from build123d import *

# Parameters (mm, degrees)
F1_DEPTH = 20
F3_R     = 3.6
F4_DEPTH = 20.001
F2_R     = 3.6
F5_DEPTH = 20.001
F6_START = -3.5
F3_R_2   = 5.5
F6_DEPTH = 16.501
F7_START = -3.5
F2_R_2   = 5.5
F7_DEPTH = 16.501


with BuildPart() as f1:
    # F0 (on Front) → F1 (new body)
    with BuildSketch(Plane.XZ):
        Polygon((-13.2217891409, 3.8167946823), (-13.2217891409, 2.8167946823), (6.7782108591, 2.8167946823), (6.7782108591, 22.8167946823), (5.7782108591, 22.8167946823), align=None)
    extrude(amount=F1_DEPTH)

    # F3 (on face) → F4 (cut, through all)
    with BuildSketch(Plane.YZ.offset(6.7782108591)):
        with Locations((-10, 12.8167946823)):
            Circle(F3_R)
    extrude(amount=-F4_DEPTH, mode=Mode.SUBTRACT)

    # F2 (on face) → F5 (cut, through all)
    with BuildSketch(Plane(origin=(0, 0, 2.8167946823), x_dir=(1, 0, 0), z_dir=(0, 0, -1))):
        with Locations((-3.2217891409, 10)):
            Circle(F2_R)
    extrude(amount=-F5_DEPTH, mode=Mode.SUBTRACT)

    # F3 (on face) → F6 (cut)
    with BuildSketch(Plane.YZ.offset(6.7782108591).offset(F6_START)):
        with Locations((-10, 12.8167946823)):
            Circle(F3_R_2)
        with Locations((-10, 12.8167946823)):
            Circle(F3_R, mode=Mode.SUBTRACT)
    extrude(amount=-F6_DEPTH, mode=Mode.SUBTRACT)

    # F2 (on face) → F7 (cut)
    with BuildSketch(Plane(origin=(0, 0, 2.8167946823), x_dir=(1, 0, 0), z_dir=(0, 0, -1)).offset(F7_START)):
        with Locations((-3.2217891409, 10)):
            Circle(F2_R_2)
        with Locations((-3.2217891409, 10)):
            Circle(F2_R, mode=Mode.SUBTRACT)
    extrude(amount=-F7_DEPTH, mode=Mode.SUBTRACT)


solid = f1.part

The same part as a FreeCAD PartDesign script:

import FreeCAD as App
import Part
import Sketcher
from FreeCAD import Vector
Q = App.Units.Quantity

doc = App.newDocument("Part")
body = doc.addObject("PartDesign::Body", "Body")

sketch1 = doc.addObject("Sketcher::SketchObject", "Sketch")
body.addObject(sketch1)
sketch1.AttachmentSupport = (doc.XZ_Plane, [""])
sketch1.MapMode = "FlatFace"
sketch1.addGeometry([
    Part.LineSegment(Vector(-13.2, 3.8, 0), Vector(-13.2, 2.8, 0)),
    Part.LineSegment(Vector(-13.2, 2.8, 0), Vector(6.8, 2.8, 0)),
    Part.LineSegment(Vector(6.8, 2.8, 0), Vector(6.8, 22.8, 0)),
    Part.LineSegment(Vector(6.8, 22.8, 0), Vector(5.8, 22.8, 0)),
    Part.LineSegment(Vector(5.8, 22.8, 0), Vector(-13.2, 3.8, 0)),
], False)
sketch1.addConstraint([
    Sketcher.Constraint("Coincident", 0, 2, 1, 1),
    Sketcher.Constraint("Coincident", 1, 2, 2, 1),
    Sketcher.Constraint("Coincident", 2, 2, 3, 1),
    Sketcher.Constraint("Coincident", 3, 2, 4, 1),
    Sketcher.Constraint("Coincident", 4, 2, 0, 1),
    Sketcher.Constraint("Vertical", 0),
    Sketcher.Constraint("Horizontal", 1),
    Sketcher.Constraint("Vertical", 2),
    Sketcher.Constraint("Horizontal", 3),
    Sketcher.Constraint("Equal", 3, 0),
    Sketcher.Constraint("Equal", 1, 2),
    Sketcher.Constraint("DistanceX", 1, 1, 1, 2, Q("20 mm")),
    Sketcher.Constraint("DistanceX", 3, 2, 3, 1, Q("1 mm")),
    Sketcher.Constraint("DistanceX", 0, 2, -1, 1, Q("13.221789 mm")),
    Sketcher.Constraint("DistanceY", -1, 1, 0, 2, Q("2.816795 mm")),
])
pad1 = doc.addObject("PartDesign::Pad", "Pad")
body.addObject(pad1)
pad1.Profile = sketch1
pad1.Length = 20

sketch2 = doc.addObject("Sketcher::SketchObject", "Sketch001")
body.addObject(sketch2)
sketch2.AttachmentSupport = (doc.YZ_Plane, [""])
sketch2.MapMode = "FlatFace"
sketch2.AttachmentOffset = App.Placement(Vector(0, 0, 6.778211), App.Rotation())
sketch2.addGeometry(Part.Circle(Vector(-10, 12.8, 0), Vector(0, 0, 1), 3.6), False)
sketch2.addConstraint([
    Sketcher.Constraint("Diameter", 0, Q("7.2 mm")),
    Sketcher.Constraint("DistanceX", 0, 3, -1, 1, Q("10 mm")),
    Sketcher.Constraint("DistanceY", -1, 1, 0, 3, Q("12.816795 mm")),
])
pocket1 = doc.addObject("PartDesign::Pocket", "Pocket")
body.addObject(pocket1)
pocket1.Profile = sketch2
pocket1.Type = "ThroughAll"

sketch3 = doc.addObject("Sketcher::SketchObject", "Sketch002")
body.addObject(sketch3)
sketch3.AttachmentSupport = (doc.XY_Plane, [""])
sketch3.MapMode = "FlatFace"
sketch3.AttachmentOffset = App.Placement(Vector(0, 0, 2.816795), App.Rotation())
sketch3.addGeometry(Part.Circle(Vector(-3.2, -10, 0), Vector(0, 0, 1), 3.6), False)
sketch3.addConstraint([
    Sketcher.Constraint("Diameter", 0, Q("7.2 mm")),
    Sketcher.Constraint("DistanceY", 0, 3, -1, 1, Q("10 mm")),
    Sketcher.Constraint("DistanceX", 0, 3, -1, 1, Q("3.221789 mm")),
])
pocket2 = doc.addObject("PartDesign::Pocket", "Pocket001")
body.addObject(pocket2)
pocket2.Profile = sketch3
pocket2.Type = "ThroughAll"
pocket2.Reversed = True

sketch4 = doc.addObject("Sketcher::SketchObject", "Sketch003")
body.addObject(sketch4)
sketch4.AttachmentSupport = (doc.YZ_Plane, [""])
sketch4.MapMode = "FlatFace"
sketch4.AttachmentOffset = App.Placement(Vector(0, 0, 3.278211), App.Rotation())
sketch4.addGeometry([
    Part.Circle(Vector(-10, 12.8, 0), Vector(0, 0, 1), 5.5),
    Part.Circle(Vector(-10, 12.8, 0), Vector(0, 0, 1), 3.6),
], False)
sketch4.addConstraint([
    Sketcher.Constraint("Coincident", 1, 3, 0, 3),
    Sketcher.Constraint("Diameter", 0, Q("11 mm")),
    Sketcher.Constraint("Diameter", 1, Q("7.2 mm")),
    Sketcher.Constraint("DistanceX", 0, 3, -1, 1, Q("10 mm")),
    Sketcher.Constraint("DistanceY", -1, 1, 0, 3, Q("12.816795 mm")),
])
pocket3 = doc.addObject("PartDesign::Pocket", "Pocket002")
body.addObject(pocket3)
pocket3.Profile = sketch4
pocket3.Length = 16.501

sketch5 = doc.addObject("Sketcher::SketchObject", "Sketch004")
body.addObject(sketch5)
sketch5.AttachmentSupport = (doc.XY_Plane, [""])
sketch5.MapMode = "FlatFace"
sketch5.AttachmentOffset = App.Placement(Vector(0, 0, 6.316795), App.Rotation())
sketch5.addGeometry([
    Part.Circle(Vector(-3.2, -10, 0), Vector(0, 0, 1), 5.5),
    Part.Circle(Vector(-3.2, -10, 0), Vector(0, 0, 1), 3.6),
], False)
sketch5.addConstraint([
    Sketcher.Constraint("Coincident", 1, 3, 0, 3),
    Sketcher.Constraint("Diameter", 0, Q("11 mm")),
    Sketcher.Constraint("Diameter", 1, Q("7.2 mm")),
    Sketcher.Constraint("DistanceY", 0, 3, -1, 1, Q("10 mm")),
    Sketcher.Constraint("DistanceX", 0, 3, -1, 1, Q("3.221789 mm")),
])
pocket4 = doc.addObject("PartDesign::Pocket", "Pocket003")
body.addObject(pocket4)
pocket4.Profile = sketch5
pocket4.Length = 16.501
pocket4.Reversed = True

doc.recompute()
